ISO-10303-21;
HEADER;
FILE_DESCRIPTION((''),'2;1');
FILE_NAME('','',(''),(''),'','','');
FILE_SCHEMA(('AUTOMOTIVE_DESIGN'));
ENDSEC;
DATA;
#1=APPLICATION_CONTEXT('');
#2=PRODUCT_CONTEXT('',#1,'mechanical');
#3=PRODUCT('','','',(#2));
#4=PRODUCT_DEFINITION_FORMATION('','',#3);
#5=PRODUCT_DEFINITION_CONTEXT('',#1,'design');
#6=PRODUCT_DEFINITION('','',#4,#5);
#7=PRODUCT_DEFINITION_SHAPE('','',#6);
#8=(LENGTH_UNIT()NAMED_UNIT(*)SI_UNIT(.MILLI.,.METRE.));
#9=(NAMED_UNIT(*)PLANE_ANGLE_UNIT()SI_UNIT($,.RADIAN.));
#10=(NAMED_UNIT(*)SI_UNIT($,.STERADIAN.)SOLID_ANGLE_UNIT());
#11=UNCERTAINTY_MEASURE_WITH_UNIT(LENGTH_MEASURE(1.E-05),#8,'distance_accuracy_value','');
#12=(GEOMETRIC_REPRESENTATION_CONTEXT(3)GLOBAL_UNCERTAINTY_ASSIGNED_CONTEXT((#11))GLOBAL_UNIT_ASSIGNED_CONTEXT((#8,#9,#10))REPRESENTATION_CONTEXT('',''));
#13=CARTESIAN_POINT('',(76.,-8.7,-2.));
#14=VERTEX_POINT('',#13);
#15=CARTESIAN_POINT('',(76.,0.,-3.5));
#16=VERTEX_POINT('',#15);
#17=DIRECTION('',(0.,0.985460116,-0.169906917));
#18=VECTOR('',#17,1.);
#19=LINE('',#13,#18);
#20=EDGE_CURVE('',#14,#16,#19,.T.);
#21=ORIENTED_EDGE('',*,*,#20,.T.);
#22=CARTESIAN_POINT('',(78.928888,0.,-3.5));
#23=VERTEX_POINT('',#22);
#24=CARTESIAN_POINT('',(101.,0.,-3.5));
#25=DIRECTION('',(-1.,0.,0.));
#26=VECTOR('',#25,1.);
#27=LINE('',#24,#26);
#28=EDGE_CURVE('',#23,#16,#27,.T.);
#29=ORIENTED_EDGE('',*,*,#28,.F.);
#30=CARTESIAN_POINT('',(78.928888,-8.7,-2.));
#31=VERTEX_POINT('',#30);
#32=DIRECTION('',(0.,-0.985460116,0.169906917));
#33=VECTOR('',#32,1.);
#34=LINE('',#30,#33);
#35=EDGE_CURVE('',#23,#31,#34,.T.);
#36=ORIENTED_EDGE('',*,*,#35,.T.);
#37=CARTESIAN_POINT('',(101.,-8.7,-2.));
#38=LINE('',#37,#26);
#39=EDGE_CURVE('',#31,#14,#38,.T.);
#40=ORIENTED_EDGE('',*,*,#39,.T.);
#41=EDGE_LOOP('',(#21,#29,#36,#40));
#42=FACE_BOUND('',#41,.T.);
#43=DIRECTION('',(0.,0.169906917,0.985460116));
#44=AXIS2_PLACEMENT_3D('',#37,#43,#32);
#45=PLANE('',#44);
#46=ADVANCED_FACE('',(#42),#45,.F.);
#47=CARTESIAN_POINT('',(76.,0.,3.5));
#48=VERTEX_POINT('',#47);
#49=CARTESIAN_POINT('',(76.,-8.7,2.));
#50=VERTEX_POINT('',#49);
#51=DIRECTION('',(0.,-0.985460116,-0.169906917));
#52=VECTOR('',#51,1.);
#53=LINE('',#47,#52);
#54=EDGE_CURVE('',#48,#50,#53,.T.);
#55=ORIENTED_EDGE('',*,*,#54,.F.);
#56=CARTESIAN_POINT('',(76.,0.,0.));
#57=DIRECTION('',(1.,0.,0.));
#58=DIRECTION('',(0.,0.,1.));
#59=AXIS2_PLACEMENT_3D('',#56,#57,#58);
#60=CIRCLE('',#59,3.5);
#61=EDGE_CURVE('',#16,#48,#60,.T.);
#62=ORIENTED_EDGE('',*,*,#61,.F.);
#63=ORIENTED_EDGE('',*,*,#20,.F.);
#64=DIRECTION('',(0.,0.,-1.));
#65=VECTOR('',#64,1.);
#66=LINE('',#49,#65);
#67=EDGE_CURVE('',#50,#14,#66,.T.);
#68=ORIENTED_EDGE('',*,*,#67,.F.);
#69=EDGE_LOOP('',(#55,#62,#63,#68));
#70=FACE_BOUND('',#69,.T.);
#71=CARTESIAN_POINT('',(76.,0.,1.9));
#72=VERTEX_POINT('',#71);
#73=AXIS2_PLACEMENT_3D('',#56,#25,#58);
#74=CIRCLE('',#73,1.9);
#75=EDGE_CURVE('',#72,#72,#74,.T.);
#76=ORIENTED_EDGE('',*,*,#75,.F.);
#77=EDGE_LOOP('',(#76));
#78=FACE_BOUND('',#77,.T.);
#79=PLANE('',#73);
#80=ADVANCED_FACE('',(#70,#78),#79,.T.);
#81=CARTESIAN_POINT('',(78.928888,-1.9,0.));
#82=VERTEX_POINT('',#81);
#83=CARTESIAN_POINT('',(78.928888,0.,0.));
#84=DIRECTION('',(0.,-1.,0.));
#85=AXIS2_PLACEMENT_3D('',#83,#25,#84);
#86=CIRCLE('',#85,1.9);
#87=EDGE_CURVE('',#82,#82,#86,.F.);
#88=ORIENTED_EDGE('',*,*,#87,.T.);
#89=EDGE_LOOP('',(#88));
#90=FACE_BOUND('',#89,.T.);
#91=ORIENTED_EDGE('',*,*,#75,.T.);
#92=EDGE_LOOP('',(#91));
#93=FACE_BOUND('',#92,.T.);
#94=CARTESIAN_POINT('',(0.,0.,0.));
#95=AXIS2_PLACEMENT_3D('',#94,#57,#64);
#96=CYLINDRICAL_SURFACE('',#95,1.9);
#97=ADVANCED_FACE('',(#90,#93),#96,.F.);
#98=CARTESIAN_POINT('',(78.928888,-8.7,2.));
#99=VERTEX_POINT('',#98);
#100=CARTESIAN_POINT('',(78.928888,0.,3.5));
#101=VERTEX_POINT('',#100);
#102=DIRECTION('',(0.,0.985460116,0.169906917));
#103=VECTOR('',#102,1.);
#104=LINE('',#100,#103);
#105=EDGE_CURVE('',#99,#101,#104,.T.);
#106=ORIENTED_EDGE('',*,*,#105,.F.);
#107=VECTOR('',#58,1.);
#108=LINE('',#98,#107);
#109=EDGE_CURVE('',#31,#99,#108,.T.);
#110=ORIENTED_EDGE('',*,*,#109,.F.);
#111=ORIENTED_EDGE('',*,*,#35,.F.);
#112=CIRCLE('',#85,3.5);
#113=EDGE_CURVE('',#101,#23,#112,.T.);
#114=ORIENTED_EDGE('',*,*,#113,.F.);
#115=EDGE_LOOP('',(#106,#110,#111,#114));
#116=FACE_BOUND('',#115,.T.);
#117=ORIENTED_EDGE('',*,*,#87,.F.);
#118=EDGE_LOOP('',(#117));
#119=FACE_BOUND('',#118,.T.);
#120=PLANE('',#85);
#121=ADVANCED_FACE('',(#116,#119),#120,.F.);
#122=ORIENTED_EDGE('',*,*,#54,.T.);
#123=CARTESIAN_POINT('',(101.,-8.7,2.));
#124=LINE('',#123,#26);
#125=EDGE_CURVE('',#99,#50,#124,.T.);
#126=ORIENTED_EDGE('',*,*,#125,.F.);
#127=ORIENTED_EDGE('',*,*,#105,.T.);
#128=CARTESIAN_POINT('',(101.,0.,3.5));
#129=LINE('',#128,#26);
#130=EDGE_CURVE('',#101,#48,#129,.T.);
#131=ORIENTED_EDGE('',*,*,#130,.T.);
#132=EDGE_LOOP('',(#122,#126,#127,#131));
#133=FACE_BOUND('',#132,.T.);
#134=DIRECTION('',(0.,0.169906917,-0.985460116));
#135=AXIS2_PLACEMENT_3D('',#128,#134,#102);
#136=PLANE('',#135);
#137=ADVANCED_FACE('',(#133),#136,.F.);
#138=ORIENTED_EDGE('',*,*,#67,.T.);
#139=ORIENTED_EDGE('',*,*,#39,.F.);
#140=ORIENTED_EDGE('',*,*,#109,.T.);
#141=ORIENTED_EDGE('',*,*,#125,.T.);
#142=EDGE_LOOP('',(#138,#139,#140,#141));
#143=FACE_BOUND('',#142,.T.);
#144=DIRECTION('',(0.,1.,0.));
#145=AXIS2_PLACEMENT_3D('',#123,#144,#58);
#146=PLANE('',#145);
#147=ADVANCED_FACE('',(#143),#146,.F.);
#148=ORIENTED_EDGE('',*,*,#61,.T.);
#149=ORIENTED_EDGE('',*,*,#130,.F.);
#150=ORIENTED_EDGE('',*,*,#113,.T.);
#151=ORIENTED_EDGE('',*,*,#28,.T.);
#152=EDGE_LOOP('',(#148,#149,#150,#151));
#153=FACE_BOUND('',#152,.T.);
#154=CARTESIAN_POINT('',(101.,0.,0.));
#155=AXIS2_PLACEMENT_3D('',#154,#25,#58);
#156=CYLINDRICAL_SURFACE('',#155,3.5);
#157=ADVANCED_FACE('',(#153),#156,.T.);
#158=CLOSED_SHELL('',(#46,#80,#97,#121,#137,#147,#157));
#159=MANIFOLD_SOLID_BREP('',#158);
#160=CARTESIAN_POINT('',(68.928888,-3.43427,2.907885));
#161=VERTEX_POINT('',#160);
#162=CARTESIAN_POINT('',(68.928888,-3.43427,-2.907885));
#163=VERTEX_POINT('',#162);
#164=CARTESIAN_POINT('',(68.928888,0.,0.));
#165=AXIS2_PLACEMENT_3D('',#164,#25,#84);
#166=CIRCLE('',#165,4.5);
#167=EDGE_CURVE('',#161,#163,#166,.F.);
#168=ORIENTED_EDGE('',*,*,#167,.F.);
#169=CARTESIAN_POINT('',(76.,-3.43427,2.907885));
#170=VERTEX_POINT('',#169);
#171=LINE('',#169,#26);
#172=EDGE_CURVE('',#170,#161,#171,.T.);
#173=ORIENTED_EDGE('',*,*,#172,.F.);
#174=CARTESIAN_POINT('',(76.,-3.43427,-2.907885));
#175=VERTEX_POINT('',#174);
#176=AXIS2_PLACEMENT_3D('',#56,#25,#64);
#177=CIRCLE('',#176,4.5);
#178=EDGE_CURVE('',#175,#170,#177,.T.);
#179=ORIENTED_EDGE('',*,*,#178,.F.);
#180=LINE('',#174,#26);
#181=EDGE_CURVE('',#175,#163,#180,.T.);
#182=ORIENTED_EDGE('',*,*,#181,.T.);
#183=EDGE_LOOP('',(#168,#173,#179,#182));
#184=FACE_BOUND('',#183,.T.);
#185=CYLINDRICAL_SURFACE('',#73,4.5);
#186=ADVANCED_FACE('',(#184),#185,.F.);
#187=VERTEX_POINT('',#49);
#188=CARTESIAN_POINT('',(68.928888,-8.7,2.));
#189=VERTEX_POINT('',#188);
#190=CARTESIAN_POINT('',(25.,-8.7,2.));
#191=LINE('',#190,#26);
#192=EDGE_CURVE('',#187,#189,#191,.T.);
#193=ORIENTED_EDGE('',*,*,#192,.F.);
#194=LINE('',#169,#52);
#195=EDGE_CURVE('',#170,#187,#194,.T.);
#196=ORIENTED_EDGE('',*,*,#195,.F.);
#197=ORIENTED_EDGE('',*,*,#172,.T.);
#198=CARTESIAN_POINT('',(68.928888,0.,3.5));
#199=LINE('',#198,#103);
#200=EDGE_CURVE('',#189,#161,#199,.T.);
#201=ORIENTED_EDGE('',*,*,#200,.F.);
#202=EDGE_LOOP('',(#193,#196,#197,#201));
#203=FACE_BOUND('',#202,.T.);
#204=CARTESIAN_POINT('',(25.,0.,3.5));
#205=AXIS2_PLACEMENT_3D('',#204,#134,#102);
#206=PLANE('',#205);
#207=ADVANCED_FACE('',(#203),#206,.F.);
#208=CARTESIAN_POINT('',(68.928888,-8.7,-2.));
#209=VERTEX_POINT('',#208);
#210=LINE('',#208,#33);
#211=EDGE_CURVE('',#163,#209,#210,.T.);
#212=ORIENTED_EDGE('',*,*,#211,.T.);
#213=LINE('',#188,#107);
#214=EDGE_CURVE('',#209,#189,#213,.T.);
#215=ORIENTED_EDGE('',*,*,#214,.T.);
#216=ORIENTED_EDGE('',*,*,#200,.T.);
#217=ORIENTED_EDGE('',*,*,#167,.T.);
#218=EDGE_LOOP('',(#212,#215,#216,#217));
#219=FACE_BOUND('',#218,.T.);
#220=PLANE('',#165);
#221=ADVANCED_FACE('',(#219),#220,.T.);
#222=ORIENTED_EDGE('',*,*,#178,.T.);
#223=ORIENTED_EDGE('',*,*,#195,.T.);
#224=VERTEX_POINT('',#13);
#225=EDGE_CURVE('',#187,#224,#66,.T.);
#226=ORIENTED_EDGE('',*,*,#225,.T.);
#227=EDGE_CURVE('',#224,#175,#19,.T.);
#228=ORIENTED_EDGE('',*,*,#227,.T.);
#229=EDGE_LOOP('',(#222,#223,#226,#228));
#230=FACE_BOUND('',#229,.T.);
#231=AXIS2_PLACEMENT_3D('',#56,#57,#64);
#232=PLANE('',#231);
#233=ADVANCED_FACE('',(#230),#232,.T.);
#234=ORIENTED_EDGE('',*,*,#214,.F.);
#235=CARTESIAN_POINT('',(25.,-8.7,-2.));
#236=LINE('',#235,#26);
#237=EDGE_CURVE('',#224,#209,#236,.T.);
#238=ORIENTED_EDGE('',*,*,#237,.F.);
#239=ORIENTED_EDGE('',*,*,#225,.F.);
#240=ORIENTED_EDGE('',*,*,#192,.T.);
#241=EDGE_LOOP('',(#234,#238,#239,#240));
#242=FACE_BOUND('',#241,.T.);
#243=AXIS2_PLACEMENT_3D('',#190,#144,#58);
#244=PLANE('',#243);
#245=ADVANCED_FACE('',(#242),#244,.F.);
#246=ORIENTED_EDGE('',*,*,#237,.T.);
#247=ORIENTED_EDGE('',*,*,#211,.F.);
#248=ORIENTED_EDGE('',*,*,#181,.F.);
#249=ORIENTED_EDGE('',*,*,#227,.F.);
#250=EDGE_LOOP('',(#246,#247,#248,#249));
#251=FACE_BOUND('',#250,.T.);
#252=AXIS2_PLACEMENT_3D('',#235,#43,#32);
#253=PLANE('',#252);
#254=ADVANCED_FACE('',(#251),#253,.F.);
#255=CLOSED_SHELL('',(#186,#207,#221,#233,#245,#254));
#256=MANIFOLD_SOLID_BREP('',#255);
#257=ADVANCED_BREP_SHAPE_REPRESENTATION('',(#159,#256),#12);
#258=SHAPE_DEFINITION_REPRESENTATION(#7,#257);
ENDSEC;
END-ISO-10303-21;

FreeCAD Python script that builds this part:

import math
import FreeCAD as App
import Part
import Sketcher


def add_polygon(sketch, points):
    """Adds a closed chain of lines whose ends are joined by coincident constraints."""
    first, n = sketch.GeometryCount, len(points)
    for a, b in zip(points, points[1:] + points[:1]):
        sketch.addGeometry(Part.LineSegment(App.Vector(*a, 0), App.Vector(*b, 0)), False)
    for i in range(n):
        sketch.addConstraint(Sketcher.Constraint("Coincident", first + i, 2, first + (i + 1) % n, 1))

doc = App.newDocument("Part")
params = doc.addObject("Spreadsheet::Sheet", "Params")
for row, (alias, value) in enumerate([
    ("sketch1_diameter", "3.8 mm"),
    ("sketch1_radius", "3.5 mm"),
    ("sketch1_height", "4 mm"),
    ("pad1_length", "25 mm"),
    ("sketch2_radius", "4.5 mm"),
    ("sketch2_height", "4 mm"),
    ("pad2_length", "51 mm"),
    ("sketch4_radius", "3.5 mm"),
    ("sketch4_diameter", "3.02 mm"),
    ("sketch4_height", "4 mm"),
    ("pad3_length", "25 mm"),
    ("sketch5_diameter", "3.8 mm"),
], start=1):
    params.set(f"A{row}", alias)
    params.set(f"B{row}", "=" + value)
    params.setAlias(f"B{row}", alias)

body = doc.addObject("PartDesign::Body", "Body")

sketch1 = doc.addObject("Sketcher::SketchObject", "Sketch")
body.addObject(sketch1)
sketch1.AttachmentSupport = (doc.YZ_Plane, [""])
sketch1.MapMode = "FlatFace"
sketch1.addGeometry([
    Part.LineSegment(App.Vector(-8.7, -2, 0), App.Vector(0, -3.5, 0)),
    Part.ArcOfCircle(Part.Circle(App.Vector(0, 0, 0), App.Vector(0, 0, 1), 3.5), math.radians(-90), math.radians(90)),
    Part.LineSegment(App.Vector(0, 3.5, 0), App.Vector(-8.7, 2, 0)),
    Part.LineSegment(App.Vector(-8.7, 2, 0), App.Vector(-8.7, -2, 0)),
    Part.Circle(App.Vector(0, 0, 0), App.Vector(0, 0, 1), 1.9),
], False)
sketch1.addConstraint([
    Sketcher.Constraint("Coincident", 0, 2, 1, 1),
    Sketcher.Constraint("Coincident", 1, 2, 2, 1),
    Sketcher.Constraint("Coincident", 2, 2, 3, 1),
    Sketcher.Constraint("Coincident", 3, 2, 0, 1),
    Sketcher.Constraint("Vertical", 3),
    Sketcher.Constraint("Coincident", 1, 3, -1, 1),
    Sketcher.Constraint("Coincident", 4, 3, -1, 1),
    Sketcher.Constraint("PointOnObject", 0, 2, -2),
    Sketcher.Constraint("PointOnObject", 1, 2, -2),
    Sketcher.Constraint("Equal", 0, 2),
    Sketcher.Constraint("Diameter", 4, 3.8),
    Sketcher.Constraint("Radius", 1, 3.5),
    Sketcher.Constraint("DistanceY", 3, 2, 3, 1, 4.0),
    Sketcher.Constraint("DistanceX", 2, 2, -1, 1, 8.7),
])
sketch1.setExpression("Constraints[10]", "Params.sketch1_diameter")
sketch1.setExpression("Constraints[11]", "Params.sketch1_radius")
sketch1.setExpression("Constraints[12]", "Params.sketch1_height")
pad1 = doc.addObject("PartDesign::Pad", "Pad")
body.addObject(pad1)
pad1.Profile = sketch1
pad1.setExpression("Length", "Params.pad1_length")

sketch2 = doc.addObject("Sketcher::SketchObject", "Sketch001")
body.addObject(sketch2)
sketch2.AttachmentSupport = (doc.YZ_Plane, [""])
sketch2.MapMode = "FlatFace"
sketch2.AttachmentOffset = App.Placement(App.Vector(0, 0, 25), App.Rotation())
sketch2.addGeometry([
    Part.LineSegment(App.Vector(-8.7, 2, 0), App.Vector(-8.7, -2, 0)),
    Part.LineSegment(App.Vector(-8.7, -2, 0), App.Vector(-3.43427, -2.907885, 0)),
    Part.ArcOfCircle(Part.Circle(App.Vector(0, 0, 0), App.Vector(0, 0, 1), 4.5), math.radians(139.744551), math.radians(220.255449)),
    Part.LineSegment(App.Vector(-3.43427, 2.907885, 0), App.Vector(-8.7, 2, 0)),
], False)
sketch2.addConstraint([
    Sketcher.Constraint("Coincident", 0, 2, 1, 1),
    Sketcher.Constraint("Coincident", 1, 2, 2, 2),
    Sketcher.Constraint("Coincident", 2, 1, 3, 1),
    Sketcher.Constraint("Coincident", 3, 2, 0, 1),
    Sketcher.Constraint("Vertical", 0),
    Sketcher.Constraint("Coincident", 2, 3, -1, 1),
    Sketcher.Constraint("Vertical", 1, 2, 2, 1),
    Sketcher.Constraint("Equal", 1, 3),
    Sketcher.Constraint("Radius", 2, 4.5),
    Sketcher.Constraint("DistanceY", 0, 2, 0, 1, 4.0),
    Sketcher.Constraint("DistanceX", 0, 2, -1, 1, 8.7),
    Sketcher.Constraint("DistanceX", 1, 2, -1, 1, 3.43427),
])
sketch2.setExpression("Constraints[8]", "Params.sketch2_radius")
sketch2.setExpression("Constraints[9]", "Params.sketch2_height")
pad2 = doc.addObject("PartDesign::Pad", "Pad001")
body.addObject(pad2)
pad2.Profile = sketch2
pad2.setExpression("Length", "Params.pad2_length")

sketch3 = doc.addObject("Sketcher::SketchObject", "Sketch002")
body.addObject(sketch3)
sketch3.AttachmentSupport = (doc.YZ_Plane, [""])
sketch3.MapMode = "FlatFace"
sketch3.AttachmentOffset = App.Placement(App.Vector(0, 0, 68.928888), App.Rotation())
add_polygon(sketch3, [(-12.026496, -6.508446), (4.54771, -6.508446), (4.54771, 6.508446), (-12.026496, 6.508446)])
sketch3.addConstraint([
    Sketcher.Constraint("Horizontal", 0),
    Sketcher.Constraint("Vertical", 1),
    Sketcher.Constraint("Horizontal", 2),
    Sketcher.Constraint("Vertical", 3),
    Sketcher.Constraint("DistanceY", 1, 1, 1, 2, 13.016892),
    Sketcher.Constraint("DistanceX", 0, 1, 0, 2, 16.574206),
    Sketcher.Constraint("DistanceX", -1, 1, 0, 2, 4.54771),
    Sketcher.Constraint("DistanceY", 0, 2, -1, 1, 6.508446),
])
pocket1 = doc.addObject("PartDesign::Pocket", "Pocket")
body.addObject(pocket1)
pocket1.Profile = sketch3
pocket1.Type = "ThroughAll"
body2 = doc.addObject("PartDesign::Body", "Body001")

sketch4 = doc.addObject("Sketcher::SketchObject", "Sketch003")
body2.addObject(sketch4)
sketch4.AttachmentSupport = (doc.getObject("YZ_Plane001"), [""])
sketch4.MapMode = "FlatFace"
sketch4.AttachmentOffset = App.Placement(App.Vector(0, 0, 76), App.Rotation())
sketch4.addGeometry([
    Part.LineSegment(App.Vector(0, 3.5, 0), App.Vector(-8.7, 2, 0)),
    Part.LineSegment(App.Vector(-8.7, 2, 0), App.Vector(-8.7, -2, 0)),
    Part.LineSegment(App.Vector(-8.7, -2, 0), App.Vector(0, -3.5, 0)),
    Part.ArcOfCircle(Part.Circle(App.Vector(0, 0, 0), App.Vector(0, 0, 1), 3.5), math.radians(-90), math.radians(90)),
    Part.Circle(App.Vector(0, 0, 0), App.Vector(0, 0, 1), 1.51),
], False)
sketch4.addConstraint([
    Sketcher.Constraint("Coincident", 0, 2, 1, 1),
    Sketcher.Constraint("Coincident", 1, 2, 2, 1),
    Sketcher.Constraint("Coincident", 2, 2, 3, 1),
    Sketcher.Constraint("Coincident", 3, 2, 0, 1),
    Sketcher.Constraint("Vertical", 1),
    Sketcher.Constraint("Coincident", 3, 3, -1, 1),
    Sketcher.Constraint("Coincident", 4, 3, -1, 1),
    Sketcher.Constraint("PointOnObject", 2, 2, -2),
    Sketcher.Constraint("PointOnObject", 3, 2, -2),
    Sketcher.Constraint("Equal", 0, 2),
    Sketcher.Constraint("Radius", 3, 3.5),
    Sketcher.Constraint("Diameter", 4, 3.02),
    Sketcher.Constraint("DistanceY", 1, 2, 1, 1, 4.0),
    Sketcher.Constraint("DistanceX", 0, 2, -1, 1, 8.7),
])
sketch4.setExpression("Constraints[10]", "Params.sketch4_radius")
sketch4.setExpression("Constraints[11]", "Params.sketch4_diameter")
sketch4.setExpression("Constraints[12]", "Params.sketch4_height")
pad3 = doc.addObject("PartDesign::Pad", "Pad002")
body2.addObject(pad3)
pad3.Profile = sketch4
pad3.setExpression("Length", "Params.pad3_length")

sketch5 = doc.addObject("Sketcher::SketchObject", "Sketch004")
body2.addObject(sketch5)
sketch5.AttachmentSupport = (doc.getObject("YZ_Plane001"), [""])
sketch5.MapMode = "FlatFace"
sketch5.AttachmentOffset = App.Placement(App.Vector(0, 0, 101), App.Rotation())
sketch5.addGeometry(Part.Circle(App.Vector(0, 0, 0), App.Vector(0, 0, 1), 1.9), False)
sketch5.addConstraint([
    Sketcher.Constraint("Coincident", 0, 3, -1, 1),
    Sketcher.Constraint("Diameter", 0, 3.8),
])
sketch5.setExpression("Constraints[1]", "Params.sketch5_diameter")
pocket2 = doc.addObject("PartDesign::Pocket", "Pocket001")
body2.addObject(pocket2)
pocket2.Profile = sketch5
pocket2.Type = "ThroughAll"

sketch6 = doc.addObject("Sketcher::SketchObject", "Sketch005")
body2.addObject(sketch6)
sketch6.AttachmentSupport = (doc.getObject("YZ_Plane001"), [""])
sketch6.MapMode = "FlatFace"
sketch6.AttachmentOffset = App.Placement(App.Vector(0, 0, 78.928888), App.Rotation())
add_polygon(sketch6, [(-12.623543, -6.490437), (4.57254, -6.490437), (4.57254, 6.490437), (-12.623543, 6.490437)])
sketch6.addConstraint([
    Sketcher.Constraint("Horizontal", 0),
    Sketcher.Constraint("Vertical", 1),
    Sketcher.Constraint("Horizontal", 2),
    Sketcher.Constraint("Vertical", 3),
    Sketcher.Constraint("DistanceX", 0, 1, 0, 2, 17.196083),
    Sketcher.Constraint("DistanceY", 1, 1, 1, 2, 12.980873),
    Sketcher.Constraint("DistanceX", -1, 1, 0, 2, 4.57254),
    Sketcher.Constraint("DistanceY", 0, 2, -1, 1, 6.490437),
])
pocket3 = doc.addObject("PartDesign::Pocket", "Pocket002")
body2.addObject(pocket3)
pocket3.Profile = sketch6
pocket3.Type = "ThroughAll"
pocket3.Reversed = True

doc.recompute()
